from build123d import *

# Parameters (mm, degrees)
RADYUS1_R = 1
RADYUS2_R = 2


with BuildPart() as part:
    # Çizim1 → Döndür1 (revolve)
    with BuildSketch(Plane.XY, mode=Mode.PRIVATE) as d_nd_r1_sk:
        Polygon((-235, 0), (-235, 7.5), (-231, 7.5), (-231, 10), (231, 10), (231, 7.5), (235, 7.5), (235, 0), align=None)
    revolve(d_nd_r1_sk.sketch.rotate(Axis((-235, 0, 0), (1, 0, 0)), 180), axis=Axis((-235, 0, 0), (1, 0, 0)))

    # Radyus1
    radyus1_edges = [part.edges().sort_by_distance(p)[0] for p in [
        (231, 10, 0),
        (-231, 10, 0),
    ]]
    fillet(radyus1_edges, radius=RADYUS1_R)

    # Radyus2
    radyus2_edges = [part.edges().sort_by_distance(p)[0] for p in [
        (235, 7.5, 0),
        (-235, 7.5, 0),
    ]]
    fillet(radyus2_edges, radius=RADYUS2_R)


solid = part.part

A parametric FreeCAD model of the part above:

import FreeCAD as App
import Part
import Sketcher
Q = App.Units.Quantity


def edges_at(feature, points):
    """Names of the edges that pass closest to the given points."""
    edges = feature.Shape.Edges
    near = lambda p: min(range(len(edges)), key=lambda i: edges[i].distToShape(Part.Vertex(*p))[0])
    return sorted({f"Edge{near(p) + 1}" for p in points})


def add_polygon(sketch, points):
    """Adds a closed chain of lines whose ends are joined by coincident constraints."""
    first, n = sketch.GeometryCount, len(points)
    for a, b in zip(points, points[1:] + points[:1]):
        sketch.addGeometry(Part.LineSegment(App.Vector(*a, 0), App.Vector(*b, 0)), False)
    for i in range(n):
        sketch.addConstraint(Sketcher.Constraint("Coincident", first + i, 2, first + (i + 1) % n, 1))

doc = App.newDocument("Part")
body = doc.addObject("PartDesign::Body", "Body")

# Sketch on XY plane
sketch1 = body.newObject("Sketcher::SketchObject", "Sketch")
sketch1.AttachmentSupport = (doc.getObject("XY_Plane"), [""])
sketch1.MapMode = "FlatFace"
add_polygon(sketch1, [(-235, 7.5), (-235, 0), (235, 0), (235, 7.5), (231, 7.5), (231, 10), (-231, 10), (-231, 7.5)])  # lines 0-7
sketch1.addConstraint([
    Sketcher.Constraint("Vertical", 0),
    Sketcher.Constraint("Horizontal", 1),
    Sketcher.Constraint("Vertical", 2),
    Sketcher.Constraint("Horizontal", 3),
    Sketcher.Constraint("Vertical", 4),
    Sketcher.Constraint("Horizontal", 5),
    Sketcher.Constraint("Vertical", 6),
    Sketcher.Constraint("Horizontal", 7),
    Sketcher.Constraint("Symmetric", 0, 2, 1, 2, -1, 1),
    Sketcher.Constraint("Symmetric", 3, 2, 6, 2, -2),
    Sketcher.Constraint("DistanceX", 1, 1, 1, 2, Q("470 mm")),
    Sketcher.Constraint("DistanceX", 3, 2, 3, 1, Q("4 mm")),
    Sketcher.Constraint("DistanceY", 0, 2, 0, 1, Q("7.5 mm")),
    Sketcher.Constraint("DistanceY", 4, 1, 4, 2, Q("2.5 mm")),
])
revolution = body.newObject("PartDesign::Revolution", "Revolution")
revolution.Profile = sketch1
revolution.ReferenceAxis = (sketch1, ["H_Axis"])
revolution.Angle = 360
doc.recompute()

fillet = body.newObject("PartDesign::Fillet", "Fillet")
fillet.Base = (revolution, edges_at(revolution, [(231, 10, 0), (-231, 10, 0)]))
fillet.Radius = 1
doc.recompute()

fillet2 = body.newObject("PartDesign::Fillet", "Fillet001")
fillet2.Base = (fillet, edges_at(fillet, [(235, 7.5, 0), (-235, 7.5, 0)]))
fillet2.Radius = 2

doc.recompute()
